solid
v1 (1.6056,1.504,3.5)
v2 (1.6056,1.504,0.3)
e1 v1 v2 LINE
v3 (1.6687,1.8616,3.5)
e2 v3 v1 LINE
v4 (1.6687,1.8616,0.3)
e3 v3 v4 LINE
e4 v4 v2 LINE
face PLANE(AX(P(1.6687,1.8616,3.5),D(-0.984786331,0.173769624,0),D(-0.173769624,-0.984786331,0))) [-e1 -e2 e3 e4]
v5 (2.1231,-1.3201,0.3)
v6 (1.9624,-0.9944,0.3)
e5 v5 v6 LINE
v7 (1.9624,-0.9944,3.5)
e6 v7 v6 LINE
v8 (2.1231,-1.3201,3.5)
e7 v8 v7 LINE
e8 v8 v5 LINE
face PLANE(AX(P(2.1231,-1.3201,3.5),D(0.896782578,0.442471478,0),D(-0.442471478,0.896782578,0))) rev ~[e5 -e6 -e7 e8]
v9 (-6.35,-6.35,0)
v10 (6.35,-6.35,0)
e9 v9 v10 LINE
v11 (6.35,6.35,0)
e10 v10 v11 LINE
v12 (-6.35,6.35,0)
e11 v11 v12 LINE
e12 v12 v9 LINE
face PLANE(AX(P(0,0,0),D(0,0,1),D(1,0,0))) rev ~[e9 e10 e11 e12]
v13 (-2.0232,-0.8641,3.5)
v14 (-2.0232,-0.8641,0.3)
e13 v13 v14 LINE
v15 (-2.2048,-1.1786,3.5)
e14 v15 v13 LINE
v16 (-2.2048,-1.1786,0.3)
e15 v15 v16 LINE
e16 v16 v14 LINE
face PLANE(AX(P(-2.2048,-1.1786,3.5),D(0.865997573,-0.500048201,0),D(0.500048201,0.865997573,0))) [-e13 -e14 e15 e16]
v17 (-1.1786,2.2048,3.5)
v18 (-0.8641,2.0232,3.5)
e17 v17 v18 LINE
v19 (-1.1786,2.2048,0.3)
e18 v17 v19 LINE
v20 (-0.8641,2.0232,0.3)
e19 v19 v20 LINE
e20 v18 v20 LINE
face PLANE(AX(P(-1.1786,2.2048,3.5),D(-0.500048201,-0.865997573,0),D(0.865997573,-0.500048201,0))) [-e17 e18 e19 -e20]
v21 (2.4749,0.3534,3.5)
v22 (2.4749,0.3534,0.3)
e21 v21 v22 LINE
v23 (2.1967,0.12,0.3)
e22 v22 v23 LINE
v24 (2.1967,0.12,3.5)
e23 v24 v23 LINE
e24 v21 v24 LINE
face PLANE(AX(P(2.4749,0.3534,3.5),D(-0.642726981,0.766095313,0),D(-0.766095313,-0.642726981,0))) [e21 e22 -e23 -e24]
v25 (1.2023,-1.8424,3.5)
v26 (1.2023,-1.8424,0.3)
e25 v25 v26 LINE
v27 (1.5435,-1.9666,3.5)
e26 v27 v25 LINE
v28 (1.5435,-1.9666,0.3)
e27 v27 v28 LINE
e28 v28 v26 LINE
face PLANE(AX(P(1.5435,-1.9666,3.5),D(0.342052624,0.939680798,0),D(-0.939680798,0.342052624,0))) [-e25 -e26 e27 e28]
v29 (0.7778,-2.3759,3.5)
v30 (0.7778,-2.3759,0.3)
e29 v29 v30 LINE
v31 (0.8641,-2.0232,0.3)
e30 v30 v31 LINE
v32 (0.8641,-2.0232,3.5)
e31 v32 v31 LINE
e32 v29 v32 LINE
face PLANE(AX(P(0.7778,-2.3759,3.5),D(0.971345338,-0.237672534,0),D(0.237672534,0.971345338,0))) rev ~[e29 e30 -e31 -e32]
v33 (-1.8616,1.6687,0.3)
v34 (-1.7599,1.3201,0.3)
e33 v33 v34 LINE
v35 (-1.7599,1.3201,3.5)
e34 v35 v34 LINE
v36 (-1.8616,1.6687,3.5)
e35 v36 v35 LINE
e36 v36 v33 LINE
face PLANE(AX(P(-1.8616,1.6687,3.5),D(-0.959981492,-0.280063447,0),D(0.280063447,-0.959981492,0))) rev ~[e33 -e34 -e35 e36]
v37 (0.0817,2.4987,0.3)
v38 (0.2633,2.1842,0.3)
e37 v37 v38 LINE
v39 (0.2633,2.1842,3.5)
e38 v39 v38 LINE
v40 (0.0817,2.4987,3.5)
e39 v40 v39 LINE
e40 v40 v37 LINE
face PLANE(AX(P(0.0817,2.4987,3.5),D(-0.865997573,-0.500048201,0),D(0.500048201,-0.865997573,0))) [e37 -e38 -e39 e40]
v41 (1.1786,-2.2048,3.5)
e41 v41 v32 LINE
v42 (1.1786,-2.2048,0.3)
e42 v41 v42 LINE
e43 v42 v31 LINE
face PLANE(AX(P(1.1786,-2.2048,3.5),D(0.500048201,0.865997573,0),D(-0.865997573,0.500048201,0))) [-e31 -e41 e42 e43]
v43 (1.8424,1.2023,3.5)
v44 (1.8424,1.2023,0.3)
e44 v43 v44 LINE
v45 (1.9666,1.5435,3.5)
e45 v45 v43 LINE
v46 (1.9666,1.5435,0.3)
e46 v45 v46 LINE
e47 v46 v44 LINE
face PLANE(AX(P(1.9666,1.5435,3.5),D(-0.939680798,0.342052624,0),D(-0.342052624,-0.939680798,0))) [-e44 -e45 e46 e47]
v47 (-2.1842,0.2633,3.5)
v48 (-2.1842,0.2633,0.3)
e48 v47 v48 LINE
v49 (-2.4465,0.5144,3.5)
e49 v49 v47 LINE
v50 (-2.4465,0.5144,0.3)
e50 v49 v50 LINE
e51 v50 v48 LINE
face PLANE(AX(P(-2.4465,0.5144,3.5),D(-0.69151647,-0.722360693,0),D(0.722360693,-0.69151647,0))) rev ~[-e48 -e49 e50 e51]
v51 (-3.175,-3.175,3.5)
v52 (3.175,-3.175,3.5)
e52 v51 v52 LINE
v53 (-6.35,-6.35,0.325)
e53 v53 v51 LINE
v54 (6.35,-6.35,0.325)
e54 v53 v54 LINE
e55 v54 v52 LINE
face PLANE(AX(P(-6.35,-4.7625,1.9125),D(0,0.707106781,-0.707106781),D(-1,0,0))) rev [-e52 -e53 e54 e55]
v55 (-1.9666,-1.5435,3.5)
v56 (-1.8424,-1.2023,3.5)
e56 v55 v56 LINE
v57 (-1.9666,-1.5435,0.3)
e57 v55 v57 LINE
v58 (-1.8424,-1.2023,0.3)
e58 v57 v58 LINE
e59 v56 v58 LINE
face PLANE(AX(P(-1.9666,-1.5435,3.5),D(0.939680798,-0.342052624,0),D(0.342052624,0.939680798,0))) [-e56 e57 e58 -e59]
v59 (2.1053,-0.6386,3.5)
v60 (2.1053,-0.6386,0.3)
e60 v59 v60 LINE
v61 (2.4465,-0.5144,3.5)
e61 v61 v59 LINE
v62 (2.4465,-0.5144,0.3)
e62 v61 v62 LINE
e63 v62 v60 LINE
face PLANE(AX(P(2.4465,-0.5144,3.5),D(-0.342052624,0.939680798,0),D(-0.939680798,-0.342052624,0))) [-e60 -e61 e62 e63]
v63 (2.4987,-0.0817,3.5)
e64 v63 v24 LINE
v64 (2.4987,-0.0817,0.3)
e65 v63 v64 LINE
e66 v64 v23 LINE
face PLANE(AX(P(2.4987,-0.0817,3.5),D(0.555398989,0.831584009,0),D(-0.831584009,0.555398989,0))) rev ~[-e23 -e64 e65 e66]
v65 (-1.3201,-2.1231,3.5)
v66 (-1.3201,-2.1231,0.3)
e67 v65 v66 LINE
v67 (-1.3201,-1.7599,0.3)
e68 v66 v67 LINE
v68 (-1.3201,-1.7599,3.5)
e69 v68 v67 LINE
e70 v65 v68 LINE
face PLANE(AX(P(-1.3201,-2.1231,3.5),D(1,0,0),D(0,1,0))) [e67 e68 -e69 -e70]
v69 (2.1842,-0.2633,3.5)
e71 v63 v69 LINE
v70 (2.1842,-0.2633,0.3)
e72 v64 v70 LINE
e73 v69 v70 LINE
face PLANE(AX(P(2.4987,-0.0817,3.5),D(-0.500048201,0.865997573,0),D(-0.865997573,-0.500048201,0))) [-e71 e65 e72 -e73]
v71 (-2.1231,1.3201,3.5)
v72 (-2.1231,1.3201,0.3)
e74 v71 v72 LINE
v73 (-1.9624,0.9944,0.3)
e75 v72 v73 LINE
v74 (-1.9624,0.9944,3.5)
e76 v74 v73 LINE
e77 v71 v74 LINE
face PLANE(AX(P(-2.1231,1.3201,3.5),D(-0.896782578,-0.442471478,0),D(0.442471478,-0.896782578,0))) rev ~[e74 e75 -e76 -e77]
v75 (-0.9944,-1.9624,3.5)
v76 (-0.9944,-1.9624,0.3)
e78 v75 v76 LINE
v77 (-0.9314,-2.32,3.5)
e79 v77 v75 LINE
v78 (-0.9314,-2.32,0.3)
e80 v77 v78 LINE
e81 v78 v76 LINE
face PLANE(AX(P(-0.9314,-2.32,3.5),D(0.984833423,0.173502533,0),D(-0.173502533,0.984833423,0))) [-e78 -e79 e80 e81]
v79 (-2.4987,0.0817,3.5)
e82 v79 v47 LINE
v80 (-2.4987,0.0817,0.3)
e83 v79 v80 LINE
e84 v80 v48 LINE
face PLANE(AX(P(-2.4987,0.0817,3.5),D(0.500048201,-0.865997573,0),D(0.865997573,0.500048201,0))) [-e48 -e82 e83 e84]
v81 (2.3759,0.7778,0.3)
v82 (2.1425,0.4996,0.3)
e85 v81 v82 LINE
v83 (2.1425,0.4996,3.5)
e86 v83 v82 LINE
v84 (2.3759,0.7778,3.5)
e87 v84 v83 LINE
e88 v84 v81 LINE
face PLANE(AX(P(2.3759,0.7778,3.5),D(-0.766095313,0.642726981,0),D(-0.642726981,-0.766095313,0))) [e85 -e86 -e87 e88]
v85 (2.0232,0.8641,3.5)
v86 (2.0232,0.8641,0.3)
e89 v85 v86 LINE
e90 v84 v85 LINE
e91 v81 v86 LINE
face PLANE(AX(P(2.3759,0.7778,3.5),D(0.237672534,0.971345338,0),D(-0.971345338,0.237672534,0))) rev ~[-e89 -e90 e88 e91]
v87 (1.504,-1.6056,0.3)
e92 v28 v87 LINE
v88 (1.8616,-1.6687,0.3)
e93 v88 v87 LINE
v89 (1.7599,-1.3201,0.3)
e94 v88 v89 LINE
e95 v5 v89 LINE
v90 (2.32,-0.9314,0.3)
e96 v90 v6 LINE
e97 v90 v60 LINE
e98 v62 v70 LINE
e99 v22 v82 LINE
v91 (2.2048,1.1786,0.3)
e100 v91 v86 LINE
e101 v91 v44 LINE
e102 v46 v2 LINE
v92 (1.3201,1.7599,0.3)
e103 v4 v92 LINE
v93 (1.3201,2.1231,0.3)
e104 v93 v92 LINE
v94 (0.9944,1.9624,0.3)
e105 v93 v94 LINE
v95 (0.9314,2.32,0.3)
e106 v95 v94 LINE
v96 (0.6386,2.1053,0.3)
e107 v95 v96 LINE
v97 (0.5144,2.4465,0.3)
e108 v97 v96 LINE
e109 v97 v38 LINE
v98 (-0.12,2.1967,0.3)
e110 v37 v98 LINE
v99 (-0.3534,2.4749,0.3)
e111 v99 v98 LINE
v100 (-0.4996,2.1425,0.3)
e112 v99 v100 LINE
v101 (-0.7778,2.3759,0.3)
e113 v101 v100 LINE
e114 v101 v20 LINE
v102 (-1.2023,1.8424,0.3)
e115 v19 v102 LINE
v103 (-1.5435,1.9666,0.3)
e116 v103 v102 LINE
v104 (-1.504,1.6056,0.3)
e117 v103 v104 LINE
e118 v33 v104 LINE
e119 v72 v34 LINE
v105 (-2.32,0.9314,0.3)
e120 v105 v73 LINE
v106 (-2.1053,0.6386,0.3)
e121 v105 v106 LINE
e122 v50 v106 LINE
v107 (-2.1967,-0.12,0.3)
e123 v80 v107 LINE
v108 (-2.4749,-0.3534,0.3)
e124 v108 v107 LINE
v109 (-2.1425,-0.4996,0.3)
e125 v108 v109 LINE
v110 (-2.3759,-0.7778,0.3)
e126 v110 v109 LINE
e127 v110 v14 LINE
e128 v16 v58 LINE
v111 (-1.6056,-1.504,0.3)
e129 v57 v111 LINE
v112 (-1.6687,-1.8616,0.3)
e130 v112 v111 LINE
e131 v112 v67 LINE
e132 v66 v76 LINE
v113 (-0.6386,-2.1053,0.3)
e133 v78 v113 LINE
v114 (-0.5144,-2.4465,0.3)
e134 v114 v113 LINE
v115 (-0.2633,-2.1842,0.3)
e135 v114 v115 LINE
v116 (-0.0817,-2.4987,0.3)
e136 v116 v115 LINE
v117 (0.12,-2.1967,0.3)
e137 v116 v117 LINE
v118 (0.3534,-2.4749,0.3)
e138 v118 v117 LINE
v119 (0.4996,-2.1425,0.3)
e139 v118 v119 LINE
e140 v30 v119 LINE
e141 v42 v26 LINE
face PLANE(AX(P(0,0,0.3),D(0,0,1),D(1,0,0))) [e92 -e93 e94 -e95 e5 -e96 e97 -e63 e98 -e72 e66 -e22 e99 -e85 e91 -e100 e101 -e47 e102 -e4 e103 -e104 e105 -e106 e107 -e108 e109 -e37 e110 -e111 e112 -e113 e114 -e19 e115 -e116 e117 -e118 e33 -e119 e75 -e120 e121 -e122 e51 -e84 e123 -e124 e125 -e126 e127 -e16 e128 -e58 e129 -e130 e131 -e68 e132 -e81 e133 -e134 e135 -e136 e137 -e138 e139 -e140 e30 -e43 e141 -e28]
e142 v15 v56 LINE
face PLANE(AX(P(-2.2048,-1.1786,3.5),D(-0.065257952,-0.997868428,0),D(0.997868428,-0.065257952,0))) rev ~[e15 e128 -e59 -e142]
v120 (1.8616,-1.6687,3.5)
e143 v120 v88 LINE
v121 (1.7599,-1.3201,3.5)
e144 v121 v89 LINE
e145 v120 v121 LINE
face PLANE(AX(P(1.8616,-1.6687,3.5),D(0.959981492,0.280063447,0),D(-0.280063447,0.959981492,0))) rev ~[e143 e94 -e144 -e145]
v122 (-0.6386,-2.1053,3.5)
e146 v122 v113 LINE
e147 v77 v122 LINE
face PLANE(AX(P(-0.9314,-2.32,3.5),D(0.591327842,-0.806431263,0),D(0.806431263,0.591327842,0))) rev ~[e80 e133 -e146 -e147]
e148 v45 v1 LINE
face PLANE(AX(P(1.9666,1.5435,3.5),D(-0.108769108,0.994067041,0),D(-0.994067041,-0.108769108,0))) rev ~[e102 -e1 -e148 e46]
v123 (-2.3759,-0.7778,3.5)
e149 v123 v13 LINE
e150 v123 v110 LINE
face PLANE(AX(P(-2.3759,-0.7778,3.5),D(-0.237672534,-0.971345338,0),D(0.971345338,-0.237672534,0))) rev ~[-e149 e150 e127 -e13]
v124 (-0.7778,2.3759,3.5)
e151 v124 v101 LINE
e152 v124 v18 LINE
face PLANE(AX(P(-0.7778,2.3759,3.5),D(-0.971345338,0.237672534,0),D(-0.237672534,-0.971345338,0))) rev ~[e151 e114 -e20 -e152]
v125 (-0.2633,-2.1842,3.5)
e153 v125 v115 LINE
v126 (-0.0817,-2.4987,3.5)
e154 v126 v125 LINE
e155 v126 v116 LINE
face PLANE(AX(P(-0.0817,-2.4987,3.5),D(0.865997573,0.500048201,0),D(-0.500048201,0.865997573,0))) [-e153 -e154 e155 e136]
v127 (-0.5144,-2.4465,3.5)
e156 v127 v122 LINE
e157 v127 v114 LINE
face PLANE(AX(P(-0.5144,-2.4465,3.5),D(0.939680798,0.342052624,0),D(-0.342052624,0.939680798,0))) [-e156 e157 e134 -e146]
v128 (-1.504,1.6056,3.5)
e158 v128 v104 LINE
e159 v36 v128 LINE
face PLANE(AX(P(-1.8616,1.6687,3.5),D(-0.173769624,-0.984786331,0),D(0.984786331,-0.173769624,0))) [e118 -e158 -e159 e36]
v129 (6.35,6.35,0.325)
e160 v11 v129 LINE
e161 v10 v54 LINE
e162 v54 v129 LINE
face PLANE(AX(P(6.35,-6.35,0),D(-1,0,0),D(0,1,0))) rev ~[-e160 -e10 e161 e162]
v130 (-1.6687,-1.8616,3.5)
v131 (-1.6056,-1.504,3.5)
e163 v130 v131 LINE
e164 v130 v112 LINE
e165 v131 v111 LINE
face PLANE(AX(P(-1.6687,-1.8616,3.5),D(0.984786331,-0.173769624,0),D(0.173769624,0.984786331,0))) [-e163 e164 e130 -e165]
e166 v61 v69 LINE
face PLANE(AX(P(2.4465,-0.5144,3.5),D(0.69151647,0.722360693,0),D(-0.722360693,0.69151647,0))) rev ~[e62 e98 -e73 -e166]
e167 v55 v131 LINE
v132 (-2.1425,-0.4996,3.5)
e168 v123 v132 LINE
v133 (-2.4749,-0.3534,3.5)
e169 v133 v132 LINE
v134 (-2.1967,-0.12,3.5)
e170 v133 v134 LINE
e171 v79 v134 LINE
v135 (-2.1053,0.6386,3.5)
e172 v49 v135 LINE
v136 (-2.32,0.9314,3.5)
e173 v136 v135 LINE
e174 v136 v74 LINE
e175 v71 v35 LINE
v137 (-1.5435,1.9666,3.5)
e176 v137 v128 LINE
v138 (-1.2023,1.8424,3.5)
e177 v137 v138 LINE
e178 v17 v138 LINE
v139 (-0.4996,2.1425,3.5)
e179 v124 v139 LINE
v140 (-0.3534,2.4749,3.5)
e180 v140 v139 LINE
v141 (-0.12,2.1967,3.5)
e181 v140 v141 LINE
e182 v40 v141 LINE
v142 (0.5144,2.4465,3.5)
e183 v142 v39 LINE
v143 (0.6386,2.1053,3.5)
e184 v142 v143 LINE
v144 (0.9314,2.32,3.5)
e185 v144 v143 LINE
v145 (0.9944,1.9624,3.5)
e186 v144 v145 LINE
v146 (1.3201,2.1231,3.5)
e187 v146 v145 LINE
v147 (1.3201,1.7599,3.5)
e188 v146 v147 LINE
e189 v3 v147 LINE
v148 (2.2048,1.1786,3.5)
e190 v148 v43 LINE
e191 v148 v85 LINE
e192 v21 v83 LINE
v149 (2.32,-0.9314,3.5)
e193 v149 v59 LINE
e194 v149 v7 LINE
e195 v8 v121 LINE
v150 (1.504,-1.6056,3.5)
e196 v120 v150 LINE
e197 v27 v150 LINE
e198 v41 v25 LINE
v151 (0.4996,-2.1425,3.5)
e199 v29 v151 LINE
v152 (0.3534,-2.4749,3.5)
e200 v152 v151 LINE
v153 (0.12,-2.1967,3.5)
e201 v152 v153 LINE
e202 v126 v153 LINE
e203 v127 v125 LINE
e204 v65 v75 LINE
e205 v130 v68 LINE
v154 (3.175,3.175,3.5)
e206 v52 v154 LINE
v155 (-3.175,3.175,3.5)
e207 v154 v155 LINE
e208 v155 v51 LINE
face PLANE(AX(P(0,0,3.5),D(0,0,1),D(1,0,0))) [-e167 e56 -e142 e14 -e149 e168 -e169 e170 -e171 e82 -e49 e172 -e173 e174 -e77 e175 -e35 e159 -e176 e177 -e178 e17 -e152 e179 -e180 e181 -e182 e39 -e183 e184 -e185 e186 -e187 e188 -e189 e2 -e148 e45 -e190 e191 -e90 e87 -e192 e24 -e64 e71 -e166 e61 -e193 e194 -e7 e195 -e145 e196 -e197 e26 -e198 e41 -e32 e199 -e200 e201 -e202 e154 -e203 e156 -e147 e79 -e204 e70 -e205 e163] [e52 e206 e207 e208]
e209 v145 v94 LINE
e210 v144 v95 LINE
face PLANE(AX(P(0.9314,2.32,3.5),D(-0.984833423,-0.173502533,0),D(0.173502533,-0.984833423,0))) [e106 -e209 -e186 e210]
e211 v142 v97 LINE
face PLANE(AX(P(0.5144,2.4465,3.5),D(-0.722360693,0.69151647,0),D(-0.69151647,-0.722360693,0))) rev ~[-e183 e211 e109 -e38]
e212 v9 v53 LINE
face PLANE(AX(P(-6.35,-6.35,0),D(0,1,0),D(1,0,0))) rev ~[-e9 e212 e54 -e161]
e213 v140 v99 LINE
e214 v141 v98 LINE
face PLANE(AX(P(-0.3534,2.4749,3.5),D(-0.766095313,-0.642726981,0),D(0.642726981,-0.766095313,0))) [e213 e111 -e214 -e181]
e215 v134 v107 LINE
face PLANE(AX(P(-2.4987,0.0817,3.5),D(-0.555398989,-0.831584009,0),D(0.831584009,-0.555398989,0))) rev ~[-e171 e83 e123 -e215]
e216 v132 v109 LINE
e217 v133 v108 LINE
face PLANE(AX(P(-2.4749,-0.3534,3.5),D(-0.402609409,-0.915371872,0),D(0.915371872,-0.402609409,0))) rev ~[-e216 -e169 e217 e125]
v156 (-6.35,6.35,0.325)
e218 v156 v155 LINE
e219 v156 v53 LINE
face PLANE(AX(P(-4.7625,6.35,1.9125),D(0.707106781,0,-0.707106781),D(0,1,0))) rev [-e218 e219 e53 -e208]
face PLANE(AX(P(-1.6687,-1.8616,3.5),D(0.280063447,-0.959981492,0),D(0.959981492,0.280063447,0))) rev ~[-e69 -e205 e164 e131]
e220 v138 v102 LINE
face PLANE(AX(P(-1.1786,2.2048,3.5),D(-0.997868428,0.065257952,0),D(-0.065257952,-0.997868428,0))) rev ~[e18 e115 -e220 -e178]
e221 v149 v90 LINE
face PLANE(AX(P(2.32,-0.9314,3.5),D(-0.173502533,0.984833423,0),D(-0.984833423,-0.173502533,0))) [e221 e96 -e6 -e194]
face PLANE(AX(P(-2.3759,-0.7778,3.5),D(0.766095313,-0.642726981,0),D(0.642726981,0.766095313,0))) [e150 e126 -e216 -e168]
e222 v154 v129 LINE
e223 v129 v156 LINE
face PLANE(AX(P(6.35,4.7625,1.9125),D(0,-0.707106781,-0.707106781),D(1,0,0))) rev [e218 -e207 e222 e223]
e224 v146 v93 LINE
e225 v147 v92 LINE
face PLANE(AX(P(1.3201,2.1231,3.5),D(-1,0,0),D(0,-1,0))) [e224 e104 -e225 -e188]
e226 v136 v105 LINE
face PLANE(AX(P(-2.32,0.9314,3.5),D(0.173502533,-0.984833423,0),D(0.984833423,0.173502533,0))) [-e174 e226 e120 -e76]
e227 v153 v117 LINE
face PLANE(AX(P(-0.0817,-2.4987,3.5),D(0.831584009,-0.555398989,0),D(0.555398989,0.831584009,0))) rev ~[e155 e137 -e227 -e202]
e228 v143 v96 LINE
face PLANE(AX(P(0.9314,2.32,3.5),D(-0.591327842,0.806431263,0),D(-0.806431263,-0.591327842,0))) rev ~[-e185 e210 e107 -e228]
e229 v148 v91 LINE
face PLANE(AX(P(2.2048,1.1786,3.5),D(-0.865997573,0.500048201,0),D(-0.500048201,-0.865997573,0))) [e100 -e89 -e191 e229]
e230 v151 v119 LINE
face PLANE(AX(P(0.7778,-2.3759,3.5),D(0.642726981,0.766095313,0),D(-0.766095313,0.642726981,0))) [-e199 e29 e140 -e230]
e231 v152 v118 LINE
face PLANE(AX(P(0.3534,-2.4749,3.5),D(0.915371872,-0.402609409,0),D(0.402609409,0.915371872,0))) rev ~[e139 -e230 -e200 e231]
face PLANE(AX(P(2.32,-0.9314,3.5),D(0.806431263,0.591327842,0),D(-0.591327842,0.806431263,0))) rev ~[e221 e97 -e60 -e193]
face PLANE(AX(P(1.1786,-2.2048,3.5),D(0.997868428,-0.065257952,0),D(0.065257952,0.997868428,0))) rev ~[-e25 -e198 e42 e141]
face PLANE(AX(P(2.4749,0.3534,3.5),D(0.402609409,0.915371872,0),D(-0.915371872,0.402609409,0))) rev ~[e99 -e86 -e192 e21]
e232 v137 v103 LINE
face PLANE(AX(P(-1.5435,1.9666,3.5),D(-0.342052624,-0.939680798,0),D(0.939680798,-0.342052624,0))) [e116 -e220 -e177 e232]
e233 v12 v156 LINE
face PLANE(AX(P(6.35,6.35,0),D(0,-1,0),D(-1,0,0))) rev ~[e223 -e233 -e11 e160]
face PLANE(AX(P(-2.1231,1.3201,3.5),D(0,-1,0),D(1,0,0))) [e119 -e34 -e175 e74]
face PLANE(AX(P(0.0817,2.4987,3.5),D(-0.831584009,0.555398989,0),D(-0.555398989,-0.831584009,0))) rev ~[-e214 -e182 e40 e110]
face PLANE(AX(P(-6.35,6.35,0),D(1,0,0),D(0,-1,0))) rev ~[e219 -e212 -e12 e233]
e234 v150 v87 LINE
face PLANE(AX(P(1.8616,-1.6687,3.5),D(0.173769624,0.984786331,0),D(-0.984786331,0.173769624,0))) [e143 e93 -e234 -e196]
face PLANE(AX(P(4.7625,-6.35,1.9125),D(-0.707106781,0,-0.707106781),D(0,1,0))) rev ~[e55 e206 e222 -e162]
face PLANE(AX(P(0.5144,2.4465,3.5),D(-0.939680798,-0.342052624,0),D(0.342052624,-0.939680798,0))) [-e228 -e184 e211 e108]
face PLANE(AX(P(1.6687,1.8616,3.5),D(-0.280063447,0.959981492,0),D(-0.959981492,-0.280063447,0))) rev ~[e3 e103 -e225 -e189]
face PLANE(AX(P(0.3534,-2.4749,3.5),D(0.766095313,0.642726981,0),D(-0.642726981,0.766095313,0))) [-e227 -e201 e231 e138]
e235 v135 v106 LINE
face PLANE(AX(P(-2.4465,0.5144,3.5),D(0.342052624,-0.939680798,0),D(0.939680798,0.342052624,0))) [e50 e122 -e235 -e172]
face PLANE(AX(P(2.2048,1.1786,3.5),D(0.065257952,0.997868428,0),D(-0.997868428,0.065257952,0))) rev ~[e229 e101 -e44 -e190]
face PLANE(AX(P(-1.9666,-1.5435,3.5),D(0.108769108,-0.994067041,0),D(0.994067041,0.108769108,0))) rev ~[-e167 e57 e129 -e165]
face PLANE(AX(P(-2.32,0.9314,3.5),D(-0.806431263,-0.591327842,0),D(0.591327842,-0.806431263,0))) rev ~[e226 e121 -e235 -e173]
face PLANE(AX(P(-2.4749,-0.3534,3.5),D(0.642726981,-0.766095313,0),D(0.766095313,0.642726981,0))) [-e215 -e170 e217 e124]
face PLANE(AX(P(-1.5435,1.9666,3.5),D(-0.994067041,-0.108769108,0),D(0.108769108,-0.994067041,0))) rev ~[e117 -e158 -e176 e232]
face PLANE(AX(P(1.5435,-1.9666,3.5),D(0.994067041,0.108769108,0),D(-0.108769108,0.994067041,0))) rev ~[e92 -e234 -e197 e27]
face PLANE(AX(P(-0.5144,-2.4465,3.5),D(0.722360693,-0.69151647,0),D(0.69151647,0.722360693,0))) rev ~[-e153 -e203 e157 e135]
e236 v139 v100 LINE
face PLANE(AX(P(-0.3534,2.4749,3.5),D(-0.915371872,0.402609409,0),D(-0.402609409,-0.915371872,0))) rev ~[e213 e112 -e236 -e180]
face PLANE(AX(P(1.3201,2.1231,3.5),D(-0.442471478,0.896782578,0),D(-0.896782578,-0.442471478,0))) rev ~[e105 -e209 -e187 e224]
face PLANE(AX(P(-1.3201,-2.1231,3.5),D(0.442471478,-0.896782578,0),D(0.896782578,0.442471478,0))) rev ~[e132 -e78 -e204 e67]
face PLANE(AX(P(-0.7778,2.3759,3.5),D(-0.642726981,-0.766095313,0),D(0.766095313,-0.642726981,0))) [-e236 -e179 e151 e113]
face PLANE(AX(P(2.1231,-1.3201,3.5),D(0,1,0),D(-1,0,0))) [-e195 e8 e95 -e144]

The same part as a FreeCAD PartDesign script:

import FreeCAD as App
import Part
import Sketcher

V = App.Vector
Q = App.Units.Quantity


def edges_at(feature, points):
    """Names of the edges that pass closest to the given points."""
    edges = feature.Shape.Edges
    near = lambda p: min(range(len(edges)), key=lambda i: edges[i].distToShape(Part.Vertex(*p))[0])
    return sorted({f"Edge{near(p) + 1}" for p in points})

doc = App.newDocument("Part")
params = doc.addObject("Spreadsheet::Sheet", "Params")
for row, (alias, value) in enumerate([
    ("sketch1_width", "0.5 in"),
    ("pad1_length", "0.1377953 in"),
    ("pocket1_length", "3.2 mm"),
    ("chamfer_size", "0.125 in"),
], start=1):
    params.set(f"A{row}", alias)
    params.set(f"B{row}", "=" + value)
    params.setAlias(f"B{row}", alias)

body = doc.addObject("PartDesign::Body", "Body")

# Sketch on XY plane
sketch1 = doc.addObject("Sketcher::SketchObject", "Sketch")
body.addObject(sketch1)
sketch1.AttachmentSupport = (doc.XY_Plane, [""])
sketch1.MapMode = "FlatFace"
sketch1.addGeometry(Part.LineSegment(V(-6, 6, 0), V(-6, -6, 0)), False)
sketch1.addGeometry(Part.LineSegment(V(-6, -6, 0), V(6, -6, 0)), False)
sketch1.addGeometry(Part.LineSegment(V(6, -6, 0), V(6, 6, 0)), False)
sketch1.addGeometry(Part.LineSegment(V(6, 6, 0), V(-6, 6, 0)), False)
sketch1.addConstraint(Sketcher.Constraint("Coincident", 0, 2, 1, 1))
sketch1.addConstraint(Sketcher.Constraint("Coincident", 1, 2, 2, 1))
sketch1.addConstraint(Sketcher.Constraint("Coincident", 2, 2, 3, 1))
sketch1.addConstraint(Sketcher.Constraint("Coincident", 3, 2, 0, 1))
sketch1.addConstraint(Sketcher.Constraint("Vertical", 0))
sketch1.addConstraint(Sketcher.Constraint("Horizontal", 1))
sketch1.addConstraint(Sketcher.Constraint("Vertical", 2))
sketch1.addConstraint(Sketcher.Constraint("Horizontal", 3))
sketch1.addConstraint(Sketcher.Constraint("Symmetric", 0, 2, 2, 2, -1, 1))
sketch1.addConstraint(Sketcher.Constraint("Equal", 3, 0))
sketch1.addConstraint(Sketcher.Constraint("DistanceX", 1, 1, 1, 2, Q("0.5 in")))
sketch1.setExpression("Constraints[10]", "Params.sketch1_width")
pad1 = doc.addObject("PartDesign::Pad", "Pad")
body.addObject(pad1)
pad1.Profile = sketch1
pad1.setExpression("Length", "Params.pad1_length")

# Sketch on XY plane
sketch2 = doc.addObject("Sketcher::SketchObject", "Sketch001")
body.addObject(sketch2)
sketch2.AttachmentSupport = (doc.XY_Plane, [""])
sketch2.MapMode = "FlatFace"
sketch2.AttachmentOffset = App.Placement(V(0, 0, 0.1377953 * 25.4), App.Rotation())
sketch2.addGeometry(Part.LineSegment(V(2.02, 0.86, 0), V(2.2, 1.18, 0)), False)
sketch2.addGeometry(Part.LineSegment(V(2.2, 1.18, 0), V(1.84, 1.2, 0)), False)
sketch2.addGeometry(Part.LineSegment(V(1.84, 1.2, 0), V(1.97, 1.54, 0)), False)
sketch2.addGeometry(Part.LineSegment(V(1.97, 1.54, 0), V(1.61, 1.5, 0)), False)
sketch2.addGeometry(Part.LineSegment(V(1.61, 1.5, 0), V(1.67, 1.86, 0)), False)
sketch2.addGeometry(Part.LineSegment(V(1.67, 1.86, 0), V(1.32, 1.76, 0)), False)
sketch2.addGeometry(Part.LineSegment(V(1.32, 1.76, 0), V(1.32, 2.12, 0)), False)
sketch2.addGeometry(Part.LineSegment(V(1.32, 2.12, 0), V(0.99, 1.96, 0)), False)
sketch2.addGeometry(Part.LineSegment(V(0.99, 1.96, 0), V(0.93, 2.32, 0)), False)
sketch2.addGeometry(Part.LineSegment(V(0.93, 2.32, 0), V(0.64, 2.11, 0)), False)
sketch2.addGeometry(Part.LineSegment(V(0.64, 2.11, 0), V(0.51, 2.45, 0)), False)
sketch2.addGeometry(Part.LineSegment(V(0.51, 2.45, 0), V(0.26, 2.18, 0)), False)
sketch2.addGeometry(Part.LineSegment(V(0.26, 2.18, 0), V(0.08, 2.5, 0)), False)
sketch2.addGeometry(Part.LineSegment(V(0.08, 2.5, 0), V(-0.12, 2.2, 0)), False)
sketch2.addGeometry(Part.LineSegment(V(-0.12, 2.2, 0), V(-0.35, 2.47, 0)), False)
sketch2.addGeometry(Part.LineSegment(V(-0.35, 2.47, 0), V(-0.5, 2.14, 0)), False)
sketch2.addGeometry(Part.LineSegment(V(-0.5, 2.14, 0), V(-0.78, 2.38, 0)), False)
sketch2.addGeometry(Part.LineSegment(V(-0.78, 2.38, 0), V(-0.86, 2.02, 0)), False)
sketch2.addGeometry(Part.LineSegment(V(-0.86, 2.02, 0), V(-1.18, 2.2, 0)), False)
sketch2.addGeometry(Part.LineSegment(V(-1.18, 2.2, 0), V(-1.2, 1.84, 0)), False)
sketch2.addGeometry(Part.LineSegment(V(-1.2, 1.84, 0), V(-1.54, 1.97, 0)), False)
sketch2.addGeometry(Part.LineSegment(V(-1.54, 1.97, 0), V(-1.5, 1.61, 0)), False)
sketch2.addGeometry(Part.LineSegment(V(-1.5, 1.61, 0), V(-1.86, 1.67, 0)), False)
sketch2.addGeometry(Part.LineSegment(V(-1.86, 1.67, 0), V(-1.76, 1.32, 0)), False)
sketch2.addGeometry(Part.LineSegment(V(-1.76, 1.32, 0), V(-2.12, 1.32, 0)), False)
sketch2.addGeometry(Part.LineSegment(V(-2.12, 1.32, 0), V(-1.96, 0.99, 0)), False)
sketch2.addGeometry(Part.LineSegment(V(-1.96, 0.99, 0), V(-2.32, 0.93, 0)), False)
sketch2.addGeometry(Part.LineSegment(V(-2.32, 0.93, 0), V(-2.11, 0.64, 0)), False)
sketch2.addGeometry(Part.LineSegment(V(-2.11, 0.64, 0), V(-2.45, 0.51, 0)), False)
sketch2.addGeometry(Part.LineSegment(V(-2.45, 0.51, 0), V(-2.18, 0.26, 0)), False)
sketch2.addGeometry(Part.LineSegment(V(-2.18, 0.26, 0), V(-2.5, 0.08, 0)), False)
sketch2.addGeometry(Part.LineSegment(V(-2.5, 0.08, 0), V(-2.2, -0.12, 0)), False)
sketch2.addGeometry(Part.LineSegment(V(-2.2, -0.12, 0), V(-2.47, -0.35, 0)), False)
sketch2.addGeometry(Part.LineSegment(V(-2.47, -0.35, 0), V(-2.14, -0.5, 0)), False)
sketch2.addGeometry(Part.LineSegment(V(-2.14, -0.5, 0), V(-2.38, -0.78, 0)), False)
sketch2.addGeometry(Part.LineSegment(V(-2.38, -0.78, 0), V(-2.02, -0.86, 0)), False)
sketch2.addGeometry(Part.LineSegment(V(-2.02, -0.86, 0), V(-2.2, -1.18, 0)), False)
sketch2.addGeometry(Part.LineSegment(V(-2.2, -1.18, 0), V(-1.84, -1.2, 0)), False)
sketch2.addGeometry(Part.LineSegment(V(-1.84, -1.2, 0), V(-1.97, -1.54, 0)), False)
sketch2.addGeometry(Part.LineSegment(V(-1.97, -1.54, 0), V(-1.61, -1.5, 0)), False)
sketch2.addGeometry(Part.LineSegment(V(-1.61, -1.5, 0), V(-1.67, -1.86, 0)), False)
sketch2.addGeometry(Part.LineSegment(V(-1.67, -1.86, 0), V(-1.32, -1.76, 0)), False)
sketch2.addGeometry(Part.LineSegment(V(-1.32, -1.76, 0), V(-1.32, -2.12, 0)), False)
sketch2.addGeometry(Part.LineSegment(V(-1.32, -2.12, 0), V(-0.99, -1.96, 0)), False)
sketch2.addGeometry(Part.LineSegment(V(-0.99, -1.96, 0), V(-0.93, -2.32, 0)), False)
sketch2.addGeometry(Part.LineSegment(V(-0.93, -2.32, 0), V(-0.64, -2.11, 0)), False)
sketch2.addGeometry(Part.LineSegment(V(-0.64, -2.11, 0), V(-0.51, -2.45, 0)), False)
sketch2.addGeometry(Part.LineSegment(V(-0.51, -2.45, 0), V(-0.26, -2.18, 0)), False)
sketch2.addGeometry(Part.LineSegment(V(-0.26, -2.18, 0), V(-0.08, -2.5, 0)), False)
sketch2.addGeometry(Part.LineSegment(V(-0.08, -2.5, 0), V(0.12, -2.2, 0)), False)
sketch2.addGeometry(Part.LineSegment(V(0.12, -2.2, 0), V(0.35, -2.47, 0)), False)
sketch2.addGeometry(Part.LineSegment(V(0.35, -2.47, 0), V(0.5, -2.14, 0)), False)
sketch2.addGeometry(Part.LineSegment(V(0.5, -2.14, 0), V(0.78, -2.38, 0)), False)
sketch2.addGeometry(Part.LineSegment(V(0.78, -2.38, 0), V(0.86, -2.02, 0)), False)
sketch2.addGeometry(Part.LineSegment(V(0.86, -2.02, 0), V(1.18, -2.2, 0)), False)
sketch2.addGeometry(Part.LineSegment(V(1.18, -2.2, 0), V(1.2, -1.84, 0)), False)
sketch2.addGeometry(Part.LineSegment(V(1.2, -1.84, 0), V(1.54, -1.97, 0)), False)
sketch2.addGeometry(Part.LineSegment(V(1.54, -1.97, 0), V(1.5, -1.61, 0)), False)
sketch2.addGeometry(Part.LineSegment(V(1.5, -1.61, 0), V(1.86, -1.67, 0)), False)
sketch2.addGeometry(Part.LineSegment(V(1.86, -1.67, 0), V(1.76, -1.32, 0)), False)
sketch2.addGeometry(Part.LineSegment(V(1.76, -1.32, 0), V(2.12, -1.32, 0)), False)
sketch2.addGeometry(Part.LineSegment(V(2.12, -1.32, 0), V(1.96, -0.99, 0)), False)
sketch2.addGeometry(Part.LineSegment(V(1.96, -0.99, 0), V(2.32, -0.93, 0)), False)
sketch2.addGeometry(Part.LineSegment(V(2.32, -0.93, 0), V(2.11, -0.64, 0)), False)
sketch2.addGeometry(Part.LineSegment(V(2.11, -0.64, 0), V(2.45, -0.51, 0)), False)
sketch2.addGeometry(Part.LineSegment(V(2.45, -0.51, 0), V(2.18, -0.26, 0)), False)
sketch2.addGeometry(Part.LineSegment(V(2.18, -0.26, 0), V(2.5, -0.08, 0)), False)
sketch2.addGeometry(Part.LineSegment(V(2.5, -0.08, 0), V(2.2, 0.12, 0)), False)
sketch2.addGeometry(Part.LineSegment(V(2.2, 0.12, 0), V(2.47, 0.35, 0)), False)
sketch2.addGeometry(Part.LineSegment(V(2.47, 0.35, 0), V(2.14, 0.5, 0)), False)
sketch2.addGeometry(Part.LineSegment(V(2.14, 0.5, 0), V(2.38, 0.78, 0)), False)
sketch2.addGeometry(Part.LineSegment(V(2.38, 0.78, 0), V(2.02, 0.86, 0)), False)
sketch2.addConstraint(Sketcher.Constraint("Coincident", 0, 2, 1, 1))
sketch2.addConstraint(Sketcher.Constraint("Coincident", 1, 2, 2, 1))
sketch2.addConstraint(Sketcher.Constraint("Coincident", 2, 2, 3, 1))
sketch2.addConstraint(Sketcher.Constraint("Coincident", 3, 2, 4, 1))
sketch2.addConstraint(Sketcher.Constraint("Coincident", 4, 2, 5, 1))
sketch2.addConstraint(Sketcher.Constraint("Coincident", 5, 2, 6, 1))
sketch2.addConstraint(Sketcher.Constraint("Coincident", 6, 2, 7, 1))
sketch2.addConstraint(Sketcher.Constraint("Coincident", 7, 2, 8, 1))
sketch2.addConstraint(Sketcher.Constraint("Coincident", 8, 2, 9, 1))
sketch2.addConstraint(Sketcher.Constraint("Coincident", 9, 2, 10, 1))
sketch2.addConstraint(Sketcher.Constraint("Coincident", 10, 2, 11, 1))
sketch2.addConstraint(Sketcher.Constraint("Coincident", 11, 2, 12, 1))
sketch2.addConstraint(Sketcher.Constraint("Coincident", 12, 2, 13, 1))
sketch2.addConstraint(Sketcher.Constraint("Coincident", 13, 2, 14, 1))
sketch2.addConstraint(Sketcher.Constraint("Coincident", 14, 2, 15, 1))
sketch2.addConstraint(Sketcher.Constraint("Coincident", 15, 2, 16, 1))
sketch2.addConstraint(Sketcher.Constraint("Coincident", 16, 2, 17, 1))
sketch2.addConstraint(Sketcher.Constraint("Coincident", 17, 2, 18, 1))
sketch2.addConstraint(Sketcher.Constraint("Coincident", 18, 2, 19, 1))
sketch2.addConstraint(Sketcher.Constraint("Coincident", 19, 2, 20, 1))
sketch2.addConstraint(Sketcher.Constraint("Coincident", 20, 2, 21, 1))
sketch2.addConstraint(Sketcher.Constraint("Coincident", 21, 2, 22, 1))
sketch2.addConstraint(Sketcher.Constraint("Coincident", 22, 2, 23, 1))
sketch2.addConstraint(Sketcher.Constraint("Coincident", 23, 2, 24, 1))
sketch2.addConstraint(Sketcher.Constraint("Coincident", 24, 2, 25, 1))
sketch2.addConstraint(Sketcher.Constraint("Coincident", 25, 2, 26, 1))
sketch2.addConstraint(Sketcher.Constraint("Coincident", 26, 2, 27, 1))
sketch2.addConstraint(Sketcher.Constraint("Coincident", 27, 2, 28, 1))
sketch2.addConstraint(Sketcher.Constraint("Coincident", 28, 2, 29, 1))
sketch2.addConstraint(Sketcher.Constraint("Coincident", 29, 2, 30, 1))
sketch2.addConstraint(Sketcher.Constraint("Coincident", 30, 2, 31, 1))
sketch2.addConstraint(Sketcher.Constraint("Coincident", 31, 2, 32, 1))
sketch2.addConstraint(Sketcher.Constraint("Coincident", 32, 2, 33, 1))
sketch2.addConstraint(Sketcher.Constraint("Coincident", 33, 2, 34, 1))
sketch2.addConstraint(Sketcher.Constraint("Coincident", 34, 2, 35, 1))
sketch2.addConstraint(Sketcher.Constraint("Coincident", 35, 2, 36, 1))
sketch2.addConstraint(Sketcher.Constraint("Coincident", 36, 2, 37, 1))
sketch2.addConstraint(Sketcher.Constraint("Coincident", 37, 2, 38, 1))
sketch2.addConstraint(Sketcher.Constraint("Coincident", 38, 2, 39, 1))
sketch2.addConstraint(Sketcher.Constraint("Coincident", 39, 2, 40, 1))
sketch2.addConstraint(Sketcher.Constraint("Coincident", 40, 2, 41, 1))
sketch2.addConstraint(Sketcher.Constraint("Coincident", 41, 2, 42, 1))
sketch2.addConstraint(Sketcher.Constraint("Coincident", 42, 2, 43, 1))
sketch2.addConstraint(Sketcher.Constraint("Coincident", 43, 2, 44, 1))
sketch2.addConstraint(Sketcher.Constraint("Coincident", 44, 2, 45, 1))
sketch2.addConstraint(Sketcher.Constraint("Coincident", 45, 2, 46, 1))
sketch2.addConstraint(Sketcher.Constraint("Coincident", 46, 2, 47, 1))
sketch2.addConstraint(Sketcher.Constraint("Coincident", 47, 2, 48, 1))
sketch2.addConstraint(Sketcher.Constraint("Coincident", 48, 2, 49, 1))
sketch2.addConstraint(Sketcher.Constraint("Coincident", 49, 2, 50, 1))
sketch2.addConstraint(Sketcher.Constraint("Coincident", 50, 2, 51, 1))
sketch2.addConstraint(Sketcher.Constraint("Coincident", 51, 2, 52, 1))
sketch2.addConstraint(Sketcher.Constraint("Coincident", 52, 2, 53, 1))
sketch2.addConstraint(Sketcher.Constraint("Coincident", 53, 2, 54, 1))
sketch2.addConstraint(Sketcher.Constraint("Coincident", 54, 2, 55, 1))
sketch2.addConstraint(Sketcher.Constraint("Coincident", 55, 2, 56, 1))
sketch2.addConstraint(Sketcher.Constraint("Coincident", 56, 2, 57, 1))
sketch2.addConstraint(Sketcher.Constraint("Coincident", 57, 2, 58, 1))
sketch2.addConstraint(Sketcher.Constraint("Coincident", 58, 2, 59, 1))
sketch2.addConstraint(Sketcher.Constraint("Coincident", 59, 2, 60, 1))
sketch2.addConstraint(Sketcher.Constraint("Coincident", 60, 2, 61, 1))
sketch2.addConstraint(Sketcher.Constraint("Coincident", 61, 2, 62, 1))
sketch2.addConstraint(Sketcher.Constraint("Coincident", 62, 2, 63, 1))
sketch2.addConstraint(Sketcher.Constraint("Coincident", 63, 2, 64, 1))
sketch2.addConstraint(Sketcher.Constraint("Coincident", 64, 2, 65, 1))
sketch2.addConstraint(Sketcher.Constraint("Coincident", 65, 2, 66, 1))
sketch2.addConstraint(Sketcher.Constraint("Coincident", 66, 2, 67, 1))
sketch2.addConstraint(Sketcher.Constraint("Coincident", 67, 2, 68, 1))
sketch2.addConstraint(Sketcher.Constraint("Coincident", 68, 2, 69, 1))
sketch2.addConstraint(Sketcher.Constraint("Coincident", 69, 2, 70, 1))
sketch2.addConstraint(Sketcher.Constraint("Coincident", 70, 2, 71, 1))
sketch2.addConstraint(Sketcher.Constraint("Coincident", 71, 2, 0, 1))
sketch2.addConstraint(Sketcher.Constraint("Vertical", 6))
sketch2.addConstraint(Sketcher.Constraint("Horizontal", 24))
sketch2.addConstraint(Sketcher.Constraint("Vertical", 42))
sketch2.addConstraint(Sketcher.Constraint("Horizontal", 60))
sketch2.addConstraint(Sketcher.Constraint("Symmetric", 0, 2, 36, 2, -1, 1))
sketch2.addConstraint(Sketcher.Constraint("Symmetric", 1, 2, 37, 2, -1, 1))
sketch2.addConstraint(Sketcher.Constraint("Symmetric", 2, 2, 38, 2, -1, 1))
sketch2.addConstraint(Sketcher.Constraint("Symmetric", 3, 2, 39, 2, -1, 1))
sketch2.addConstraint(Sketcher.Constraint("Symmetric", 4, 2, 40, 2, -1, 1))
sketch2.addConstraint(Sketcher.Constraint("Symmetric", 5, 2, 41, 2, -1, 1))
sketch2.addConstraint(Sketcher.Constraint("Symmetric", 7, 2, 43, 2, -1, 1))
sketch2.addConstraint(Sketcher.Constraint("Symmetric", 8, 2, 44, 2, -1, 1))
sketch2.addConstraint(Sketcher.Constraint("Symmetric", 9, 2, 45, 2, -1, 1))
sketch2.addConstraint(Sketcher.Constraint("Symmetric", 10, 2, 46, 2, -1, 1))
sketch2.addConstraint(Sketcher.Constraint("Symmetric", 11, 2, 47, 2, -1, 1))
sketch2.addConstraint(Sketcher.Constraint("Symmetric", 12, 2, 48, 2, -1, 1))
sketch2.addConstraint(Sketcher.Constraint("Symmetric", 13, 2, 49, 2, -1, 1))
sketch2.addConstraint(Sketcher.Constraint("Symmetric", 14, 2, 50, 2, -1, 1))
sketch2.addConstraint(Sketcher.Constraint("Symmetric", 15, 2, 51, 2, -1, 1))
sketch2.addConstraint(Sketcher.Constraint("Symmetric", 16, 2, 52, 2, -1, 1))
sketch2.addConstraint(Sketcher.Constraint("Symmetric", 17, 2, 53, 2, -1, 1))
sketch2.addConstraint(Sketcher.Constraint("Symmetric", 18, 2, 54, 2, -1, 1))
sketch2.addConstraint(Sketcher.Constraint("Symmetric", 19, 2, 55, 2, -1, 1))
sketch2.addConstraint(Sketcher.Constraint("Symmetric", 20, 2, 56, 2, -1, 1))
sketch2.addConstraint(Sketcher.Constraint("Symmetric", 21, 2, 57, 2, -1, 1))
sketch2.addConstraint(Sketcher.Constraint("Symmetric", 22, 2, 58, 2, -1, 1))
sketch2.addConstraint(Sketcher.Constraint("Symmetric", 23, 2, 59, 2, -1, 1))
sketch2.addConstraint(Sketcher.Constraint("Symmetric", 25, 2, 61, 2, -1, 1))
sketch2.addConstraint(Sketcher.Constraint("Symmetric", 26, 2, 62, 2, -1, 1))
sketch2.addConstraint(Sketcher.Constraint("Symmetric", 27, 2, 63, 2, -1, 1))
sketch2.addConstraint(Sketcher.Constraint("Symmetric", 28, 2, 64, 2, -1, 1))
sketch2.addConstraint(Sketcher.Constraint("Symmetric", 29, 2, 65, 2, -1, 1))
sketch2.addConstraint(Sketcher.Constraint("Symmetric", 30, 2, 66, 2, -1, 1))
sketch2.addConstraint(Sketcher.Constraint("Symmetric", 31, 2, 67, 2, -1, 1))
sketch2.addConstraint(Sketcher.Constraint("Symmetric", 32, 2, 68, 2, -1, 1))
sketch2.addConstraint(Sketcher.Constraint("Symmetric", 33, 2, 69, 2, -1, 1))
sketch2.addConstraint(Sketcher.Constraint("Symmetric", 34, 2, 70, 2, -1, 1))
sketch2.addConstraint(Sketcher.Constraint("Symmetric", 35, 2, 71, 2, -1, 1))
sketch2.addConstraint(Sketcher.Constraint("Perpendicular", 0, 18))
sketch2.addConstraint(Sketcher.Constraint("Perpendicular", 1, 19))
sketch2.addConstraint(Sketcher.Constraint("Perpendicular", 2, 20))
sketch2.addConstraint(Sketcher.Constraint("Perpendicular", 3, 21))
sketch2.addConstraint(Sketcher.Constraint("Perpendicular", 4, 22))
sketch2.addConstraint(Sketcher.Constraint("Perpendicular", 5, 23))
sketch2.addConstraint(Sketcher.Constraint("Perpendicular", 7, 25))
sketch2.addConstraint(Sketcher.Constraint("Perpendicular", 8, 26))
sketch2.addConstraint(Sketcher.Constraint("Perpendicular", 9, 27))
sketch2.addConstraint(Sketcher.Constraint("Perpendicular", 10, 28))
sketch2.addConstraint(Sketcher.Constraint("Perpendicular", 11, 29))
sketch2.addConstraint(Sketcher.Constraint("Perpendicular", 12, 30))
sketch2.addConstraint(Sketcher.Constraint("Perpendicular", 13, 31))
sketch2.addConstraint(Sketcher.Constraint("Perpendicular", 14, 32))
sketch2.addConstraint(Sketcher.Constraint("Perpendicular", 15, 33))
sketch2.addConstraint(Sketcher.Constraint("Perpendicular", 16, 34))
sketch2.addConstraint(Sketcher.Constraint("Perpendicular", 17, 35))
sketch2.addConstraint(Sketcher.Constraint("Perpendicular", 25, 43))
sketch2.addConstraint(Sketcher.Constraint("Perpendicular", 43, 61))
sketch2.addConstraint(Sketcher.Constraint("Equal", 60, 6))
sketch2.addConstraint(Sketcher.Constraint("Equal", 0, 1))
sketch2.addConstraint(Sketcher.Constraint("Equal", 1, 2))
sketch2.addConstraint(Sketcher.Constraint("Equal", 2, 3))
sketch2.addConstraint(Sketcher.Constraint("Equal", 3, 4))
sketch2.addConstraint(Sketcher.Constraint("Equal", 4, 5))
sketch2.addConstraint(Sketcher.Constraint("Equal", 5, 7))
sketch2.addConstraint(Sketcher.Constraint("Equal", 7, 8))
sketch2.addConstraint(Sketcher.Constraint("Equal", 8, 9))
sketch2.addConstraint(Sketcher.Constraint("Equal", 9, 10))
sketch2.addConstraint(Sketcher.Constraint("Equal", 10, 11))
sketch2.addConstraint(Sketcher.Constraint("Equal", 11, 12))
sketch2.addConstraint(Sketcher.Constraint("Equal", 12, 13))
sketch2.addConstraint(Sketcher.Constraint("Equal", 13, 14))
sketch2.addConstraint(Sketcher.Constraint("Equal", 14, 15))
sketch2.addConstraint(Sketcher.Constraint("Equal", 15, 16))
sketch2.addConstraint(Sketcher.Constraint("Equal", 16, 17))
sketch2.addConstraint(Sketcher.Constraint("Equal", 17, 18))
sketch2.addConstraint(Sketcher.Constraint("Equal", 18, 19))
sketch2.addConstraint(Sketcher.Constraint("Equal", 19, 20))
sketch2.addConstraint(Sketcher.Constraint("Equal", 20, 21))
sketch2.addConstraint(Sketcher.Constraint("Equal", 21, 22))
sketch2.addConstraint(Sketcher.Constraint("Equal", 22, 23))
sketch2.addConstraint(Sketcher.Constraint("Equal", 23, 25))
sketch2.addConstraint(Sketcher.Constraint("Equal", 25, 26))
sketch2.addConstraint(Sketcher.Constraint("Equal", 26, 27))
sketch2.addConstraint(Sketcher.Constraint("Equal", 27, 28))
sketch2.addConstraint(Sketcher.Constraint("Equal", 28, 29))
sketch2.addConstraint(Sketcher.Constraint("Equal", 29, 30))
sketch2.addConstraint(Sketcher.Constraint("Equal", 30, 31))
sketch2.addConstraint(Sketcher.Constraint("Equal", 31, 32))
sketch2.addConstraint(Sketcher.Constraint("Equal", 32, 33))
sketch2.addConstraint(Sketcher.Constraint("Equal", 33, 34))
sketch2.addConstraint(Sketcher.Constraint("Equal", 34, 35))
sketch2.addConstraint(Sketcher.Constraint("Angle", 11, Q("-133.7503 deg")))
sketch2.addConstraint(Sketcher.Constraint("Angle", 17, Q("-103.7492 deg")))
sketch2.addConstraint(Sketcher.Constraint("DistanceX", 24, 2, 24, 1, Q("0.0143 in")))
sketch2.addConstraint(Sketcher.Constraint("DistanceY", -1, 1, 11, 2, Q("0.086 in")))
sketch2.addConstraint(Sketcher.Constraint("Distance", 0, Q("0.0143 in")))
sketch2.addConstraint(Sketcher.Constraint("DistanceX", -1, 1, 0, 2, Q("0.0868 in")))
sketch2.addConstraint(Sketcher.Constraint("DistanceY", -1, 1, 0, 2, Q("0.0464 in")))
sketch2.addConstraint(Sketcher.Constraint("DistanceX", -1, 1, 4, 2, Q("0.0657 in")))
sketch2.addConstraint(Sketcher.Constraint("DistanceY", -1, 1, 4, 2, Q("0.0733 in")))
sketch2.addConstraint(Sketcher.Constraint("DistanceX", -1, 1, 1, 2, 1.8424))
sketch2.addConstraint(Sketcher.Constraint("DistanceX", -1, 1, 2, 2, 1.9666))
sketch2.addConstraint(Sketcher.Constraint("DistanceX", -1, 1, 5, 2, 1.32))
sketch2.addConstraint(Sketcher.Constraint("DistanceX", -1, 1, 7, 2, 0.9944))
sketch2.addConstraint(Sketcher.Constraint("DistanceX", -1, 1, 8, 2, 0.9314))
sketch2.addConstraint(Sketcher.Constraint("DistanceX", -1, 1, 9, 2, 0.6386))
sketch2.addConstraint(Sketcher.Constraint("DistanceX", -1, 1, 12, 2, 0.0817))
sketch2.addConstraint(Sketcher.Constraint("DistanceX", 13, 2, -1, 1, 0.12))
sketch2.addConstraint(Sketcher.Constraint("DistanceX", 14, 2, -1, 1, 0.3534))
sketch2.addConstraint(Sketcher.Constraint("DistanceX", 15, 2, -1, 1, 0.4996))
pocket1 = doc.addObject("PartDesign::Pocket", "Pocket")
body.addObject(pocket1)
pocket1.Profile = sketch2
pocket1.setExpression("Length", "Params.pocket1_length")
doc.recompute()

chamfer = doc.addObject("PartDesign::Chamfer", "Chamfer")
body.addObject(chamfer)
chamfer.Base = (pocket1, edges_at(pocket1, [
    (0, -6.35, 3.5),
    (-6.35, 0, 3.5),
    (6.35, 0, 3.5),
    (0, 6.35, 3.5),
]))
chamfer.setExpression("Size", "Params.chamfer_size")

doc.recompute()
